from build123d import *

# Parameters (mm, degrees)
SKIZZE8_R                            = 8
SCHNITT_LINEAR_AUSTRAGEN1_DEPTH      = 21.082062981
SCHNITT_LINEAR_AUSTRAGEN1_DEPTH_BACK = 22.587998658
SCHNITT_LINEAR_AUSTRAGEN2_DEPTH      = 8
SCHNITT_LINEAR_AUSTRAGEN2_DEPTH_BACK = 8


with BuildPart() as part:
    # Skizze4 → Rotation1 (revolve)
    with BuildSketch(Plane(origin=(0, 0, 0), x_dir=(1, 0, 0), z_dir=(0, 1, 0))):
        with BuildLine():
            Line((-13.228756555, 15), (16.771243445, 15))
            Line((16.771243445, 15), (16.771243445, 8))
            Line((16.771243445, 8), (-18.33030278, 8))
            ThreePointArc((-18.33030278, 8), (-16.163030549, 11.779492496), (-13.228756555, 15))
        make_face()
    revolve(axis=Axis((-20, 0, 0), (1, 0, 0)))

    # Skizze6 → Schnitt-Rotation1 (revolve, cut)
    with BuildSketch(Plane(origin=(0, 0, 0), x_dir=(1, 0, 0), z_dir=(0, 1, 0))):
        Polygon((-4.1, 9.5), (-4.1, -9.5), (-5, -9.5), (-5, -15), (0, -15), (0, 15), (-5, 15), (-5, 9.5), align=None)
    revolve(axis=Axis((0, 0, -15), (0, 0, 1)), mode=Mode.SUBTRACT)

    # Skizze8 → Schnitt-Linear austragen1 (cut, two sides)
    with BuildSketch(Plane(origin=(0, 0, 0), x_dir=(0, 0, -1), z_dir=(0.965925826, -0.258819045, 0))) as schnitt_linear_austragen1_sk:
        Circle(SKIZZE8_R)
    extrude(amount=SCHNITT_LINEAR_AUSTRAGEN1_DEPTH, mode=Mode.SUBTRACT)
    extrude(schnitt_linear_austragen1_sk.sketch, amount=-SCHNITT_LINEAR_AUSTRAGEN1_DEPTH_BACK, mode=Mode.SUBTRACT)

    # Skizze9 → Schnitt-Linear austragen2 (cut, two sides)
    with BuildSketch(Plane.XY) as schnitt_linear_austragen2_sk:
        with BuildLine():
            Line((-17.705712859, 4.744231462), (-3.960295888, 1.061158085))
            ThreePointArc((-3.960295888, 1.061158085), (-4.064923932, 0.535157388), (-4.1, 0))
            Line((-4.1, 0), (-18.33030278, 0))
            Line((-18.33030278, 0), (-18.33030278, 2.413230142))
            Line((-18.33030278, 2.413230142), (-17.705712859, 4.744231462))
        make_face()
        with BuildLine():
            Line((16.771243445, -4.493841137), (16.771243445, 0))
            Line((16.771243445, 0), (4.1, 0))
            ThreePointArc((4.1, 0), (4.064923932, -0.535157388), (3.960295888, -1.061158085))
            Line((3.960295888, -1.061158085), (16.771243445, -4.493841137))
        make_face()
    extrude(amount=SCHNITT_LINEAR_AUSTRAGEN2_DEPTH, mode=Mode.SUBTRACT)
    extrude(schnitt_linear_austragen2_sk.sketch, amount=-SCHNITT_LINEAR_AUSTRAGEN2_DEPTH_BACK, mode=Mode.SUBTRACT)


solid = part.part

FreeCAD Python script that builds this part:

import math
import FreeCAD as App
import Part
import Sketcher
Q = App.Units.Quantity


def add_polygon(sketch, points):
    """Adds a closed chain of lines whose ends are joined by coincident constraints."""
    first, n = sketch.GeometryCount, len(points)
    for a, b in zip(points, points[1:] + points[:1]):
        sketch.addGeometry(Part.LineSegment(App.Vector(*a, 0), App.Vector(*b, 0)), False)
    for i in range(n):
        sketch.addConstraint(Sketcher.Constraint("Coincident", first + i, 2, first + (i + 1) % n, 1))

doc = App.newDocument("Part")
params = doc.addObject("Spreadsheet::Sheet", "Params")
for row, (alias, value) in enumerate([
    ("sketch1_radius", "20 mm"),
    ("sketch1_width", "30 mm"),
    ("sketch1_height", "7 mm"),
    ("revolution_angle", "360 deg"),
    ("sketch2_width", "5 mm"),
    ("sketch2_height", "19 mm"),
    ("sketch2_height2", "30 mm"),
    ("sketch2_width2", "0.9 mm"),
    ("groove_angle", "360 deg"),
    ("sketch3_diameter", "16 mm"),
    ("sketch4_radius", "4.1 mm"),
    ("pocket2_length", "8 mm"),
    ("pocket2_length2", "8 mm"),
], start=1):
    params.set(f"A{row}", alias)
    params.set(f"B{row}", "=" + value)
    params.setAlias(f"B{row}", alias)

body = doc.addObject("PartDesign::Body", "Body")

sketch1 = body.newObject("Sketcher::SketchObject", "Sketch")
sketch1.AttachmentSupport = (doc.getObject("XZ_Plane"), [""])
sketch1.MapMode = "FlatFace"
sketch1.addGeometry([
    Part.LineSegment(App.Vector(16.771243, -15, 0), App.Vector(-13.228757, -15, 0)),
    Part.ArcOfCircle(Part.Circle(App.Vector(0, 0, 0), App.Vector(0, 0, 1), 20), math.radians(-156.421822), math.radians(-131.409622)),
    Part.LineSegment(App.Vector(-18.330303, -8, 0), App.Vector(16.771243, -8, 0)),
    Part.LineSegment(App.Vector(16.771243, -8, 0), App.Vector(16.771243, -15, 0)),
], False)
sketch1.addConstraint([
    Sketcher.Constraint("Coincident", 0, 2, 1, 2),
    Sketcher.Constraint("Coincident", 1, 1, 2, 1),
    Sketcher.Constraint("Coincident", 2, 2, 3, 1),
    Sketcher.Constraint("Coincident", 3, 2, 0, 1),
    Sketcher.Constraint("Horizontal", 0),
    Sketcher.Constraint("Horizontal", 2),
    Sketcher.Constraint("Vertical", 3),
    Sketcher.Constraint("Coincident", 1, 3, -1, 1),
    Sketcher.Constraint("Radius", 1, Q("20 mm")),
    Sketcher.Constraint("DistanceX", 0, 2, 0, 1, Q("30 mm")),
    Sketcher.Constraint("DistanceY", 3, 2, 3, 1, Q("7 mm")),
    Sketcher.Constraint("DistanceY", 0, 2, -1, 1, Q("15 mm")),
])
sketch1.setExpression("Constraints[8]", "Params.sketch1_radius")
sketch1.setExpression("Constraints[9]", "Params.sketch1_width")
sketch1.setExpression("Constraints[10]", "Params.sketch1_height")
revolution = body.newObject("PartDesign::Revolution", "Revolution")
revolution.Profile = sketch1
revolution.ReferenceAxis = (sketch1, ["H_Axis"])
revolution.setExpression("Angle", "Params.revolution_angle")

sketch2 = body.newObject("Sketcher::SketchObject", "Sketch001")
sketch2.AttachmentSupport = (doc.getObject("XZ_Plane"), [""])
sketch2.MapMode = "FlatFace"
add_polygon(sketch2, [(-4.1, -9.5), (-4.1, 9.5), (-5, 9.5), (-5, 15), (0, 15), (0, -15), (-5, -15), (-5, -9.5)])
sketch2.addConstraint([
    Sketcher.Constraint("Vertical", 0),
    Sketcher.Constraint("Horizontal", 1),
    Sketcher.Constraint("Vertical", 2),
    Sketcher.Constraint("Horizontal", 3),
    Sketcher.Constraint("Vertical", 4),
    Sketcher.Constraint("Horizontal", 5),
    Sketcher.Constraint("Vertical", 6),
    Sketcher.Constraint("Horizontal", 7),
    Sketcher.Constraint("Symmetric", 3, 2, 4, 2, -1, 1),
    Sketcher.Constraint("Symmetric", 1, 2, 6, 2, -1),
    Sketcher.Constraint("DistanceX", 3, 1, 3, 2, Q("5 mm")),
    Sketcher.Constraint("DistanceY", 0, 1, 0, 2, Q("19 mm")),
    Sketcher.Constraint("DistanceY", 4, 2, 4, 1, Q("30 mm")),
    Sketcher.Constraint("DistanceX", 1, 2, 1, 1, Q("0.9 mm")),
])
sketch2.setExpression("Constraints[18]", "Params.sketch2_width")
sketch2.setExpression("Constraints[19]", "Params.sketch2_height")
sketch2.setExpression("Constraints[20]", "Params.sketch2_height2")
sketch2.setExpression("Constraints[21]", "Params.sketch2_width2")
groove = body.newObject("PartDesign::Groove", "Groove")
groove.Profile = sketch2
groove.ReferenceAxis = (sketch2, ["V_Axis"])
groove.setExpression("Angle", "Params.groove_angle")

sketch3 = body.newObject("Sketcher::SketchObject", "Sketch002")
sketch3.Placement = App.Placement(App.Vector(0, 0, 0), App.Rotation(App.Vector(0, 0, -1), App.Vector(0.258819045, 0.965925826, 0), App.Vector(0.965925826, -0.258819045, 0), "ZXY"))
sketch3.addGeometry(Part.Circle(App.Vector(0, 0, 0), App.Vector(0, 0, 1), 8), False)
sketch3.addConstraint([
    Sketcher.Constraint("Coincident", 0, 3, -1, 1),
    Sketcher.Constraint("Diameter", 0, Q("16 mm")),
])
sketch3.setExpression("Constraints[1]", "Params.sketch3_diameter")
pocket1 = body.newObject("PartDesign::Pocket", "Pocket")
pocket1.Profile = sketch3
pocket1.Type = "ThroughAll"
pocket1.Midplane = True

sketch4 = body.newObject("Sketcher::SketchObject", "Sketch003")
sketch4.AttachmentSupport = (doc.getObject("XY_Plane"), [""])
sketch4.MapMode = "FlatFace"
sketch4.addGeometry([
    Part.LineSegment(App.Vector(-3.960296, 1.061158, 0), App.Vector(-17.705713, 4.744231, 0)),
    Part.LineSegment(App.Vector(-17.705713, 4.744231, 0), App.Vector(-18.330303, 2.41323, 0)),
    Part.LineSegment(App.Vector(-18.330303, 2.41323, 0), App.Vector(-18.330303, 0, 0)),
    Part.LineSegment(App.Vector(-18.330303, 0, 0), App.Vector(-4.1, 0, 0)),
    Part.ArcOfCircle(Part.Circle(App.Vector(0, 0, 0), App.Vector(0, 0, 1), 4.1), math.radians(165), math.radians(180)),
    Part.LineSegment(App.Vector(16.771243, -4.493841, 0), App.Vector(16.771243, 0, 0)),
    Part.LineSegment(App.Vector(16.771243, 0, 0), App.Vector(4.1, 0, 0)),
    Part.ArcOfCircle(Part.Circle(App.Vector(0, 0, 0), App.Vector(0, 0, 1), 4.1), math.radians(-15), math.radians(0)),
    Part.LineSegment(App.Vector(3.960296, -1.061158, 0), App.Vector(16.771243, -4.493841, 0)),
], False)
sketch4.addConstraint([
    Sketcher.Constraint("Coincident", 0, 2, 1, 1),
    Sketcher.Constraint("Coincident", 1, 2, 2, 1),
    Sketcher.Constraint("Coincident", 2, 2, 3, 1),
    Sketcher.Constraint("Coincident", 3, 2, 4, 2),
    Sketcher.Constraint("Coincident", 4, 1, 0, 1),
    Sketcher.Constraint("Coincident", 5, 2, 6, 1),
    Sketcher.Constraint("Coincident", 6, 2, 7, 2),
    Sketcher.Constraint("Coincident", 7, 1, 8, 1),
    Sketcher.Constraint("Coincident", 8, 2, 5, 1),
    Sketcher.Constraint("Vertical", 2),
    Sketcher.Constraint("Horizontal", 3),
    Sketcher.Constraint("Vertical", 5),
    Sketcher.Constraint("Horizontal", 6),
    Sketcher.Constraint("Coincident", 4, 3, -1, 1),
    Sketcher.Constraint("Coincident", 7, 3, -1, 1),
    Sketcher.Constraint("Equal", 4, 7),
    Sketcher.Constraint("PointOnObject", 2, 2, -1),
    Sketcher.Constraint("PointOnObject", 5, 2, -1),
    Sketcher.Constraint("Perpendicular", 0, 1),
    Sketcher.Constraint("Perpendicular", 1, 8),
    Sketcher.Constraint("Radius", 4, Q("4.1 mm")),
    Sketcher.Constraint("Angle", 0, Q("165 deg")),
    Sketcher.Constraint("DistanceY", 1, 2, 0, 2, Q("2.331001 mm")),
    Sketcher.Constraint("DistanceY", 2, 2, 2, 1, Q("2.41323 mm")),
    Sketcher.Constraint("DistanceY", 5, 1, 5, 2, Q("4.493841 mm")),
    Sketcher.Constraint("Distance", 8, Q("13.262869 mm")),
    Sketcher.Constraint("DistanceX", 3, 1, 3, 2, Q("14.230303 mm")),
])
sketch4.setExpression("Constraints[20]", "Params.sketch4_radius")
pocket2 = body.newObject("PartDesign::Pocket", "Pocket001")
pocket2.Profile = sketch4
pocket2.Type = "TwoLengths"
pocket2.setExpression("Length", "Params.pocket2_length")
pocket2.setExpression("Length2", "Params.pocket2_length2")
pocket2.Reversed = True

doc.recompute()
